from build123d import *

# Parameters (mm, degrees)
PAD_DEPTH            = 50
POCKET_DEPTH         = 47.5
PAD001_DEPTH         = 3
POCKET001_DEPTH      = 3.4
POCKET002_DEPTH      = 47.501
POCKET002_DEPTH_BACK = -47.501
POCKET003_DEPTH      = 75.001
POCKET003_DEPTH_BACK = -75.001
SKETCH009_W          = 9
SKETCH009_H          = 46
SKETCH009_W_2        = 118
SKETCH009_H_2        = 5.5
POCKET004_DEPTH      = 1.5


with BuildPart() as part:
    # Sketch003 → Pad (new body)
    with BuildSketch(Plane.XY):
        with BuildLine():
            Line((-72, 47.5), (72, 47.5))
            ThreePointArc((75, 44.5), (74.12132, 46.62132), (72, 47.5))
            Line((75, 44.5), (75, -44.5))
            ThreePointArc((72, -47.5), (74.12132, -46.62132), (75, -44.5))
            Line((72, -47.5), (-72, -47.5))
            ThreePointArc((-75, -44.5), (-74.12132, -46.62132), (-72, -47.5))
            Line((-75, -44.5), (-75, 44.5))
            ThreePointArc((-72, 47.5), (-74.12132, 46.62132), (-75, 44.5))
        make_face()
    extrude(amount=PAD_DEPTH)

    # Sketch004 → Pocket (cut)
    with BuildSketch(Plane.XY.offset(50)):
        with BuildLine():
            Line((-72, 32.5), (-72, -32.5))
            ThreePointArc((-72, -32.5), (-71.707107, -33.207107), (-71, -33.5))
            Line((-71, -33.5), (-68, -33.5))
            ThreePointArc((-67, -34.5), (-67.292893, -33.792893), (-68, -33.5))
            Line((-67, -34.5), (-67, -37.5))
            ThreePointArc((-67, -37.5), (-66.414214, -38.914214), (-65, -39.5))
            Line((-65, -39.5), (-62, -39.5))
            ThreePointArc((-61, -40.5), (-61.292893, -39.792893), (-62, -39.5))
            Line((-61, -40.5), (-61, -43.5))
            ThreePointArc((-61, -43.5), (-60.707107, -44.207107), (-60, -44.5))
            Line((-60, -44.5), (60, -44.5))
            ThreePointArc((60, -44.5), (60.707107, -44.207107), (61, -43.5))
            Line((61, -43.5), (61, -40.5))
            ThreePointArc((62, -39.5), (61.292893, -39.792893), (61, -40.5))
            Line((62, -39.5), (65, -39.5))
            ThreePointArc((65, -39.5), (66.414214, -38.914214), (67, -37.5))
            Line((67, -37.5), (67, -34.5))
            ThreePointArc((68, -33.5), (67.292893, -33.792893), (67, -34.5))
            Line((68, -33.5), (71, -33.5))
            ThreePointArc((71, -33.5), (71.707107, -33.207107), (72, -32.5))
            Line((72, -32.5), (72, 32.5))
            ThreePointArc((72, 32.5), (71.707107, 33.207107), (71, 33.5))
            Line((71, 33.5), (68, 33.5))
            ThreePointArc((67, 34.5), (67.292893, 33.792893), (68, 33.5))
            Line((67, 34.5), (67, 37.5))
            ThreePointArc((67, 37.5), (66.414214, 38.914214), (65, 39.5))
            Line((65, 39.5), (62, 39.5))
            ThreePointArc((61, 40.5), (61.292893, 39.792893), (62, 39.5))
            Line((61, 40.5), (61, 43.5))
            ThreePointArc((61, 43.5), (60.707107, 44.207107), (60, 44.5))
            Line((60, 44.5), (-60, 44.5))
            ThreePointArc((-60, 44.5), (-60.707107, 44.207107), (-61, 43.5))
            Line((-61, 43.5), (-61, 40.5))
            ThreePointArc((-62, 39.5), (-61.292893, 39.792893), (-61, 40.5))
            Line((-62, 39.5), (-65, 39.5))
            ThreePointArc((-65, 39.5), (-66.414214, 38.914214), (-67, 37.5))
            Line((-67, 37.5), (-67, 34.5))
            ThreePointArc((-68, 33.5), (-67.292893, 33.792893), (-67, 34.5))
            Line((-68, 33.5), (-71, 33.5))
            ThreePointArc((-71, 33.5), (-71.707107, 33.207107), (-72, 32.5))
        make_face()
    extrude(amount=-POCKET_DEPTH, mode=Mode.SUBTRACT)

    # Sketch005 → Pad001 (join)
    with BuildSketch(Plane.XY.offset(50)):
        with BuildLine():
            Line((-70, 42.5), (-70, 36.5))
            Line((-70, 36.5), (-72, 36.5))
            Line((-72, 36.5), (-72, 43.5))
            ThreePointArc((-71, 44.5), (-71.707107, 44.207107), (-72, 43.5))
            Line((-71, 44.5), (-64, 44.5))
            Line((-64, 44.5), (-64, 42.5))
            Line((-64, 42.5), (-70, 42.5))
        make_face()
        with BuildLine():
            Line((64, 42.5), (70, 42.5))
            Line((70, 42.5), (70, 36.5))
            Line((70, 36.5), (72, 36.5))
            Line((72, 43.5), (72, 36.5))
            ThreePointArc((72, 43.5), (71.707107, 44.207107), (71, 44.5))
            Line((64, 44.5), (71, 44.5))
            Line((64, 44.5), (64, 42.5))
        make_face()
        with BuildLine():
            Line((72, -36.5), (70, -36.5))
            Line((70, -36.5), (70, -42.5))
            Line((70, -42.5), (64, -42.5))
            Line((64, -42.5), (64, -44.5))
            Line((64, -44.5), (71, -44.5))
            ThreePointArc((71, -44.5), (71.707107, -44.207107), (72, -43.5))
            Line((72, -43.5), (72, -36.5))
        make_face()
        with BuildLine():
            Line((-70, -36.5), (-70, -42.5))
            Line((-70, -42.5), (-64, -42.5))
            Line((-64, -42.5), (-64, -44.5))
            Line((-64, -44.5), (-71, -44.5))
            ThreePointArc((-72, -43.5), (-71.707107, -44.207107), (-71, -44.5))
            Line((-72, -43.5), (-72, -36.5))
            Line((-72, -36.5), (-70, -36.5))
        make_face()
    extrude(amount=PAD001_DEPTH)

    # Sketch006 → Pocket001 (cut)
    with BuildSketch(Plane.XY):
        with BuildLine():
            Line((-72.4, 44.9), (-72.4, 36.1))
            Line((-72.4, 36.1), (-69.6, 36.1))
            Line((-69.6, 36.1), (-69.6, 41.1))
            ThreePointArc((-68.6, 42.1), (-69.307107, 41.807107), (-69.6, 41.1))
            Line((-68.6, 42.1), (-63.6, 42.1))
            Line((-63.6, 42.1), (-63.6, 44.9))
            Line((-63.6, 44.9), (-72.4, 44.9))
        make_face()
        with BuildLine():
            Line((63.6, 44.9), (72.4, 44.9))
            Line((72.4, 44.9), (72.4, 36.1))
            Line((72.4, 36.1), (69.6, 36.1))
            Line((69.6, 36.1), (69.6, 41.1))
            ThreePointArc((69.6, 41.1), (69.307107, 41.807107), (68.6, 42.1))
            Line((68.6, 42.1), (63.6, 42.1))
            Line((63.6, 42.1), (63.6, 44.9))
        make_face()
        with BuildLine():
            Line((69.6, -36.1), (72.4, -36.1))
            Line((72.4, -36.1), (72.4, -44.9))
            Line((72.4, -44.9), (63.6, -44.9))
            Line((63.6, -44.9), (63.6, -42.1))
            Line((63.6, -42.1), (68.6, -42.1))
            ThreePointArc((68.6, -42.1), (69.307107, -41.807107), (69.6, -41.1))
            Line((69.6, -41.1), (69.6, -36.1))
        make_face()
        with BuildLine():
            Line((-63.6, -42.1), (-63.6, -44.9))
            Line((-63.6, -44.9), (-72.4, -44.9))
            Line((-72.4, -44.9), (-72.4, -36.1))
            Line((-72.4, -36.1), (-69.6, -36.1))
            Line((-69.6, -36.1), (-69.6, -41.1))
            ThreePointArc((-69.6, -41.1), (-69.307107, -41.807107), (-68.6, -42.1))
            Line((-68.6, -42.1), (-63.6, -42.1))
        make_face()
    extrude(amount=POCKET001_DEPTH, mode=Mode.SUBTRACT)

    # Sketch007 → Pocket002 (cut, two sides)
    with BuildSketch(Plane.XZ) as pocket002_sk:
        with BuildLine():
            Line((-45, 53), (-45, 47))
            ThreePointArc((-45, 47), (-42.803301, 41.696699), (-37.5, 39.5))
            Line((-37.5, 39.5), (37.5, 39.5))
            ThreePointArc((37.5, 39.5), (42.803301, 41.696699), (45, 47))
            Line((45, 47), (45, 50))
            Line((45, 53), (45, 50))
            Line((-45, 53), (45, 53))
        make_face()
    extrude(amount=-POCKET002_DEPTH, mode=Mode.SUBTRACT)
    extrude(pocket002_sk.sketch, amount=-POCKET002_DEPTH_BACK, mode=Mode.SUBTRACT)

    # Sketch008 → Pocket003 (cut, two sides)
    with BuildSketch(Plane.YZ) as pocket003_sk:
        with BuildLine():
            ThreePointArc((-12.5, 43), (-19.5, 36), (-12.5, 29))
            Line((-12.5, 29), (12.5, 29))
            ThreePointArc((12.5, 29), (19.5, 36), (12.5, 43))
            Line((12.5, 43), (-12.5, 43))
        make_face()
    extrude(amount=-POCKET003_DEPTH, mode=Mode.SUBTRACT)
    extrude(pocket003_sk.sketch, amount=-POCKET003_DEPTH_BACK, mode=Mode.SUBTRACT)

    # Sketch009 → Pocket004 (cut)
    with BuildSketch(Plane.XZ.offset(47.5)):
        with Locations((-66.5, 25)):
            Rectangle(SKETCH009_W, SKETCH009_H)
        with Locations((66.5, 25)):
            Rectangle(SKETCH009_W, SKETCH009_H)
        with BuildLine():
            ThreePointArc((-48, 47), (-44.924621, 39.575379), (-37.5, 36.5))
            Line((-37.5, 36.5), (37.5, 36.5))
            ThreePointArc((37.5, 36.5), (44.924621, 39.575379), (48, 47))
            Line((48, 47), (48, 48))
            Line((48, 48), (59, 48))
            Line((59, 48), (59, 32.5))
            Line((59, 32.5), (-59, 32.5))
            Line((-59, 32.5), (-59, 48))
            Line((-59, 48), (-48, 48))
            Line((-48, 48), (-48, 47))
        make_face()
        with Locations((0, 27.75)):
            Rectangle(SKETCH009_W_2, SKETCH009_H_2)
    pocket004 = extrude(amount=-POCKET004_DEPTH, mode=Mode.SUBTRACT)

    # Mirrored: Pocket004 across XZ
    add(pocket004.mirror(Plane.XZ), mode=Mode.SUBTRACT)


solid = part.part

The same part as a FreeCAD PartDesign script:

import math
import FreeCAD as App
import Part
import Sketcher
Q = App.Units.Quantity


def add_polygon(sketch, points):
    """Adds a closed chain of lines whose ends are joined by coincident constraints."""
    first, n = sketch.GeometryCount, len(points)
    for a, b in zip(points, points[1:] + points[:1]):
        sketch.addGeometry(Part.LineSegment(App.Vector(*a, 0), App.Vector(*b, 0)), False)
    for i in range(n):
        sketch.addConstraint(Sketcher.Constraint("Coincident", first + i, 2, first + (i + 1) % n, 1))

doc = App.newDocument("Part")
body = doc.addObject("PartDesign::Body", "Body")

# Sketch on XY plane
sketch1 = doc.addObject("Sketcher::SketchObject", "Sketch")
body.addObject(sketch1)
sketch1.AttachmentSupport = (doc.XY_Plane, [""])
sketch1.MapMode = "FlatFace"
sketch1.addGeometry(Part.LineSegment(App.Vector(72, 47.5, 0), App.Vector(-72, 47.5, 0)), False)
sketch1.addGeometry(Part.ArcOfCircle(Part.Circle(App.Vector(-72, 44.5, 0), App.Vector(0, 0, 1), 3), math.radians(90), math.radians(180)), False)
sketch1.addGeometry(Part.LineSegment(App.Vector(-75, 44.5, 0), App.Vector(-75, -44.5, 0)), False)
sketch1.addGeometry(Part.ArcOfCircle(Part.Circle(App.Vector(-72, -44.5, 0), App.Vector(0, 0, 1), 3), math.radians(-180), math.radians(-90)), False)
sketch1.addGeometry(Part.LineSegment(App.Vector(-72, -47.5, 0), App.Vector(72, -47.5, 0)), False)
sketch1.addGeometry(Part.ArcOfCircle(Part.Circle(App.Vector(72, -44.5, 0), App.Vector(0, 0, 1), 3), math.radians(-90), math.radians(0)), False)
sketch1.addGeometry(Part.LineSegment(App.Vector(75, -44.5, 0), App.Vector(75, 44.5, 0)), False)
sketch1.addGeometry(Part.ArcOfCircle(Part.Circle(App.Vector(72, 44.5, 0), App.Vector(0, 0, 1), 3), math.radians(0), math.radians(90)), False)
sketch1.addConstraint(Sketcher.Constraint("Tangent", 0, 2, 1, 1))
sketch1.addConstraint(Sketcher.Constraint("Tangent", 1, 2, 2, 1))
sketch1.addConstraint(Sketcher.Constraint("Tangent", 2, 2, 3, 1))
sketch1.addConstraint(Sketcher.Constraint("Tangent", 3, 2, 4, 1))
sketch1.addConstraint(Sketcher.Constraint("Tangent", 4, 2, 5, 1))
sketch1.addConstraint(Sketcher.Constraint("Tangent", 5, 2, 6, 1))
sketch1.addConstraint(Sketcher.Constraint("Tangent", 6, 2, 7, 1))
sketch1.addConstraint(Sketcher.Constraint("Tangent", 7, 2, 0, 1))
sketch1.addConstraint(Sketcher.Constraint("Horizontal", 0))
sketch1.addConstraint(Sketcher.Constraint("Vertical", 2))
sketch1.addConstraint(Sketcher.Constraint("Horizontal", 4))
sketch1.addConstraint(Sketcher.Constraint("Vertical", 6))
sketch1.addConstraint(Sketcher.Constraint("Equal", 1, 3))
sketch1.addConstraint(Sketcher.Constraint("Equal", 3, 5))
sketch1.addConstraint(Sketcher.Constraint("Equal", 5, 7))
sketch1.addConstraint(Sketcher.Constraint("Symmetric", 1, 3, 5, 3, -1, 1))
sketch1.addConstraint(Sketcher.Constraint("Radius", 1, Q("3.000001 mm")))
sketch1.addConstraint(Sketcher.Constraint("DistanceX", 0, 2, 0, 1, Q("144 mm")))
sketch1.addConstraint(Sketcher.Constraint("DistanceY", 2, 2, 2, 1, Q("89 mm")))
pad1 = doc.addObject("PartDesign::Pad", "Pad")
body.addObject(pad1)
pad1.Profile = sketch1
pad1.Length = 50

# Sketch on XY plane
sketch2 = doc.addObject("Sketcher::SketchObject", "Sketch001")
body.addObject(sketch2)
sketch2.AttachmentSupport = (doc.XY_Plane, [""])
sketch2.MapMode = "FlatFace"
sketch2.AttachmentOffset = App.Placement(App.Vector(0, 0, 50), App.Rotation())
sketch2.addGeometry(Part.LineSegment(App.Vector(-72, 32.5, 0), App.Vector(-72, -32.5, 0)), False)
sketch2.addGeometry(Part.ArcOfCircle(Part.Circle(App.Vector(-71, -32.5, 0), App.Vector(0, 0, 1), 1), math.radians(180), math.radians(270)), False)
sketch2.addGeometry(Part.LineSegment(App.Vector(-71, -33.5, 0), App.Vector(-68, -33.5, 0)), False)
sketch2.addGeometry(Part.ArcOfCircle(Part.Circle(App.Vector(-68, -34.5, 0), App.Vector(0, 0, 1), 1), math.radians(0), math.radians(90)), False)
sketch2.addGeometry(Part.LineSegment(App.Vector(-67, -34.5, 0), App.Vector(-67, -37.5, 0)), False)
sketch2.addGeometry(Part.ArcOfCircle(Part.Circle(App.Vector(-65, -37.5, 0), App.Vector(0, 0, 1), 2), math.radians(180), math.radians(270)), False)
sketch2.addGeometry(Part.LineSegment(App.Vector(-65, -39.5, 0), App.Vector(-62, -39.5, 0)), False)
sketch2.addGeometry(Part.ArcOfCircle(Part.Circle(App.Vector(-62, -40.5, 0), App.Vector(0, 0, 1), 1), math.radians(0), math.radians(90)), False)
sketch2.addGeometry(Part.LineSegment(App.Vector(-61, -40.5, 0), App.Vector(-61, -43.5, 0)), False)
sketch2.addGeometry(Part.ArcOfCircle(Part.Circle(App.Vector(-60, -43.5, 0), App.Vector(0, 0, 1), 1), math.radians(180), math.radians(270)), False)
sketch2.addGeometry(Part.LineSegment(App.Vector(-60, -44.5, 0), App.Vector(60, -44.5, 0)), False)
sketch2.addGeometry(Part.ArcOfCircle(Part.Circle(App.Vector(60, -43.5, 0), App.Vector(0, 0, 1), 1), math.radians(-90), math.radians(0)), False)
sketch2.addGeometry(Part.LineSegment(App.Vector(61, -43.5, 0), App.Vector(61, -40.5, 0)), False)
sketch2.addGeometry(Part.ArcOfCircle(Part.Circle(App.Vector(62, -40.5, 0), App.Vector(0, 0, 1), 1), math.radians(90), math.radians(180)), False)
sketch2.addGeometry(Part.LineSegment(App.Vector(62, -39.5, 0), App.Vector(65, -39.5, 0)), False)
sketch2.addGeometry(Part.ArcOfCircle(Part.Circle(App.Vector(65, -37.5, 0), App.Vector(0, 0, 1), 2), math.radians(-90), math.radians(0)), False)
sketch2.addGeometry(Part.LineSegment(App.Vector(67, -37.5, 0), App.Vector(67, -34.5, 0)), False)
sketch2.addGeometry(Part.ArcOfCircle(Part.Circle(App.Vector(68, -34.5, 0), App.Vector(0, 0, 1), 1), math.radians(90), math.radians(180)), False)
sketch2.addGeometry(Part.LineSegment(App.Vector(68, -33.5, 0), App.Vector(71, -33.5, 0)), False)
sketch2.addGeometry(Part.ArcOfCircle(Part.Circle(App.Vector(71, -32.5, 0), App.Vector(0, 0, 1), 1), math.radians(-90), math.radians(0)), False)
sketch2.addGeometry(Part.LineSegment(App.Vector(72, -32.5, 0), App.Vector(72, 32.5, 0)), False)
sketch2.addGeometry(Part.ArcOfCircle(Part.Circle(App.Vector(71, 32.5, 0), App.Vector(0, 0, 1), 1), math.radians(0), math.radians(90)), False)
sketch2.addGeometry(Part.LineSegment(App.Vector(71, 33.5, 0), App.Vector(68, 33.5, 0)), False)
sketch2.addGeometry(Part.ArcOfCircle(Part.Circle(App.Vector(68, 34.5, 0), App.Vector(0, 0, 1), 1), math.radians(180), math.radians(270)), False)
sketch2.addGeometry(Part.LineSegment(App.Vector(67, 34.5, 0), App.Vector(67, 37.5, 0)), False)
sketch2.addGeometry(Part.ArcOfCircle(Part.Circle(App.Vector(65, 37.5, 0), App.Vector(0, 0, 1), 2), math.radians(0), math.radians(90)), False)
sketch2.addGeometry(Part.LineSegment(App.Vector(65, 39.5, 0), App.Vector(62, 39.5, 0)), False)
sketch2.addGeometry(Part.ArcOfCircle(Part.Circle(App.Vector(62, 40.5, 0), App.Vector(0, 0, 1), 1), math.radians(180), math.radians(270)), False)
sketch2.addGeometry(Part.LineSegment(App.Vector(61, 40.5, 0), App.Vector(61, 43.5, 0)), False)
sketch2.addGeometry(Part.ArcOfCircle(Part.Circle(App.Vector(60, 43.5, 0), App.Vector(0, 0, 1), 1), math.radians(0), math.radians(90)), False)
sketch2.addGeometry(Part.LineSegment(App.Vector(60, 44.5, 0), App.Vector(-60, 44.5, 0)), False)
sketch2.addGeometry(Part.ArcOfCircle(Part.Circle(App.Vector(-60, 43.5, 0), App.Vector(0, 0, 1), 1), math.radians(90), math.radians(180)), False)
sketch2.addGeometry(Part.LineSegment(App.Vector(-61, 43.5, 0), App.Vector(-61, 40.5, 0)), False)
sketch2.addGeometry(Part.ArcOfCircle(Part.Circle(App.Vector(-62, 40.5, 0), App.Vector(0, 0, 1), 1), math.radians(-90), math.radians(0)), False)
sketch2.addGeometry(Part.LineSegment(App.Vector(-62, 39.5, 0), App.Vector(-65, 39.5, 0)), False)
sketch2.addGeometry(Part.ArcOfCircle(Part.Circle(App.Vector(-65, 37.5, 0), App.Vector(0, 0, 1), 2), math.radians(90), math.radians(180)), False)
sketch2.addGeometry(Part.LineSegment(App.Vector(-67, 37.5, 0), App.Vector(-67, 34.5, 0)), False)
sketch2.addGeometry(Part.ArcOfCircle(Part.Circle(App.Vector(-68, 34.5, 0), App.Vector(0, 0, 1), 1), math.radians(-90), math.radians(0)), False)
sketch2.addGeometry(Part.LineSegment(App.Vector(-68, 33.5, 0), App.Vector(-71, 33.5, 0)), False)
sketch2.addGeometry(Part.ArcOfCircle(Part.Circle(App.Vector(-71, 32.5, 0), App.Vector(0, 0, 1), 1), math.radians(90), math.radians(180)), False)
sketch2.addConstraint(Sketcher.Constraint("Tangent", 0, 2, 1, 1))
sketch2.addConstraint(Sketcher.Constraint("Tangent", 1, 2, 2, 1))
sketch2.addConstraint(Sketcher.Constraint("Tangent", 2, 2, 3, 2))
sketch2.addConstraint(Sketcher.Constraint("Tangent", 3, 1, 4, 1))
sketch2.addConstraint(Sketcher.Constraint("Tangent", 4, 2, 5, 1))
sketch2.addConstraint(Sketcher.Constraint("Tangent", 5, 2, 6, 1))
sketch2.addConstraint(Sketcher.Constraint("Tangent", 6, 2, 7, 2))
sketch2.addConstraint(Sketcher.Constraint("Tangent", 7, 1, 8, 1))
sketch2.addConstraint(Sketcher.Constraint("Tangent", 8, 2, 9, 1))
sketch2.addConstraint(Sketcher.Constraint("Tangent", 9, 2, 10, 1))
sketch2.addConstraint(Sketcher.Constraint("Tangent", 10, 2, 11, 1))
sketch2.addConstraint(Sketcher.Constraint("Tangent", 11, 2, 12, 1))
sketch2.addConstraint(Sketcher.Constraint("Tangent", 12, 2, 13, 2))
sketch2.addConstraint(Sketcher.Constraint("Tangent", 13, 1, 14, 1))
sketch2.addConstraint(Sketcher.Constraint("Tangent", 14, 2, 15, 1))
sketch2.addConstraint(Sketcher.Constraint("Tangent", 15, 2, 16, 1))
sketch2.addConstraint(Sketcher.Constraint("Tangent", 16, 2, 17, 2))
sketch2.addConstraint(Sketcher.Constraint("Tangent", 17, 1, 18, 1))
sketch2.addConstraint(Sketcher.Constraint("Tangent", 18, 2, 19, 1))
sketch2.addConstraint(Sketcher.Constraint("Tangent", 19, 2, 20, 1))
sketch2.addConstraint(Sketcher.Constraint("Tangent", 20, 2, 21, 1))
sketch2.addConstraint(Sketcher.Constraint("Tangent", 21, 2, 22, 1))
sketch2.addConstraint(Sketcher.Constraint("Tangent", 22, 2, 23, 2))
sketch2.addConstraint(Sketcher.Constraint("Tangent", 23, 1, 24, 1))
sketch2.addConstraint(Sketcher.Constraint("Tangent", 24, 2, 25, 1))
sketch2.addConstraint(Sketcher.Constraint("Tangent", 25, 2, 26, 1))
sketch2.addConstraint(Sketcher.Constraint("Tangent", 26, 2, 27, 2))
sketch2.addConstraint(Sketcher.Constraint("Tangent", 27, 1, 28, 1))
sketch2.addConstraint(Sketcher.Constraint("Tangent", 28, 2, 29, 1))
sketch2.addConstraint(Sketcher.Constraint("Tangent", 29, 2, 30, 1))
sketch2.addConstraint(Sketcher.Constraint("Tangent", 30, 2, 31, 1))
sketch2.addConstraint(Sketcher.Constraint("Tangent", 31, 2, 32, 1))
sketch2.addConstraint(Sketcher.Constraint("Tangent", 32, 2, 33, 2))
sketch2.addConstraint(Sketcher.Constraint("Tangent", 33, 1, 34, 1))
sketch2.addConstraint(Sketcher.Constraint("Tangent", 34, 2, 35, 1))
sketch2.addConstraint(Sketcher.Constraint("Tangent", 35, 2, 36, 1))
sketch2.addConstraint(Sketcher.Constraint("Tangent", 36, 2, 37, 2))
sketch2.addConstraint(Sketcher.Constraint("Tangent", 37, 1, 38, 1))
sketch2.addConstraint(Sketcher.Constraint("Tangent", 38, 2, 39, 1))
sketch2.addConstraint(Sketcher.Constraint("Tangent", 39, 2, 0, 1))
sketch2.addConstraint(Sketcher.Constraint("Vertical", 0))
sketch2.addConstraint(Sketcher.Constraint("Horizontal", 2))
sketch2.addConstraint(Sketcher.Constraint("Vertical", 4))
sketch2.addConstraint(Sketcher.Constraint("Horizontal", 6))
sketch2.addConstraint(Sketcher.Constraint("Vertical", 8))
sketch2.addConstraint(Sketcher.Constraint("Horizontal", 10))
sketch2.addConstraint(Sketcher.Constraint("Vertical", 12))
sketch2.addConstraint(Sketcher.Constraint("Horizontal", 14))
sketch2.addConstraint(Sketcher.Constraint("Vertical", 16))
sketch2.addConstraint(Sketcher.Constraint("Horizontal", 18))
sketch2.addConstraint(Sketcher.Constraint("Vertical", 20))
sketch2.addConstraint(Sketcher.Constraint("Horizontal", 22))
sketch2.addConstraint(Sketcher.Constraint("Vertical", 24))
sketch2.addConstraint(Sketcher.Constraint("Horizontal", 26))
sketch2.addConstraint(Sketcher.Constraint("Vertical", 28))
sketch2.addConstraint(Sketcher.Constraint("Horizontal", 30))
sketch2.addConstraint(Sketcher.Constraint("Vertical", 32))
sketch2.addConstraint(Sketcher.Constraint("Horizontal", 34))
sketch2.addConstraint(Sketcher.Constraint("Vertical", 36))
sketch2.addConstraint(Sketcher.Constraint("Horizontal", 38))
sketch2.addConstraint(Sketcher.Constraint("Equal", 1, 3))
sketch2.addConstraint(Sketcher.Constraint("Equal", 3, 7))
sketch2.addConstraint(Sketcher.Constraint("Equal", 7, 9))
sketch2.addConstraint(Sketcher.Constraint("Equal", 9, 11))
sketch2.addConstraint(Sketcher.Constraint("Equal", 11, 13))
sketch2.addConstraint(Sketcher.Constraint("Equal", 5, 15))
sketch2.addConstraint(Sketcher.Constraint("Equal", 13, 17))
sketch2.addConstraint(Sketcher.Constraint("Equal", 17, 19))
sketch2.addConstraint(Sketcher.Constraint("Equal", 19, 21))
sketch2.addConstraint(Sketcher.Constraint("Equal", 21, 23))
sketch2.addConstraint(Sketcher.Constraint("Equal", 15, 25))
sketch2.addConstraint(Sketcher.Constraint("Equal", 23, 27))
sketch2.addConstraint(Sketcher.Constraint("Equal", 27, 29))
sketch2.addConstraint(Sketcher.Constraint("Equal", 29, 31))
sketch2.addConstraint(Sketcher.Constraint("Equal", 31, 33))
sketch2.addConstraint(Sketcher.Constraint("Equal", 25, 35))
sketch2.addConstraint(Sketcher.Constraint("Equal", 33, 37))
sketch2.addConstraint(Sketcher.Constraint("Equal", 37, 39))
sketch2.addConstraint(Sketcher.Constraint("Symmetric", 1, 3, 21, 3, -1, 1))
sketch2.addConstraint(Sketcher.Constraint("Symmetric", 5, 3, 25, 3, -1, 1))
sketch2.addConstraint(Sketcher.Constraint("Symmetric", 9, 3, 29, 3, -1, 1))
sketch2.addConstraint(Sketcher.Constraint("Symmetric", 13, 3, 33, 3, -1, 1))
sketch2.addConstraint(Sketcher.Constraint("Symmetric", 17, 3, 37, 3, -1, 1))
sketch2.addConstraint(Sketcher.Constraint("Symmetric", 7, 3, 13, 3, -2))
sketch2.addConstraint(Sketcher.Constraint("Symmetric", 3, 3, 17, 3, -2))
sketch2.addConstraint(Sketcher.Constraint("Equal", 2, 6))
sketch2.addConstraint(Sketcher.Constraint("Equal", 38, 4))
sketch2.addConstraint(Sketcher.Constraint("Equal", 4, 8))
sketch2.addConstraint(Sketcher.Constraint("Radius", 1, Q("0.999999 mm")))
sketch2.addConstraint(Sketcher.Constraint("Radius", 5, Q("1.999999 mm")))
sketch2.addConstraint(Sketcher.Constraint("DistanceX", 2, 1, 2, 2, Q("3 mm")))
sketch2.addConstraint(Sketcher.Constraint("DistanceX", 10, 1, 10, 2, Q("120 mm")))
sketch2.addConstraint(Sketcher.Constraint("DistanceY", 0, 2, 0, 1, Q("65 mm")))
pocket1 = doc.addObject("PartDesign::Pocket", "Pocket")
body.addObject(pocket1)
pocket1.Profile = sketch2
pocket1.Length = 47.5

# Sketch on XY plane
sketch3 = doc.addObject("Sketcher::SketchObject", "Sketch002")
body.addObject(sketch3)
sketch3.AttachmentSupport = (doc.XY_Plane, [""])
sketch3.MapMode = "FlatFace"
sketch3.AttachmentOffset = App.Placement(App.Vector(0, 0, 50), App.Rotation())
sketch3.addGeometry(Part.LineSegment(App.Vector(-70, 36.5, 0), App.Vector(-70, 42.5, 0)), False)
sketch3.addGeometry(Part.LineSegment(App.Vector(-70, 42.5, 0), App.Vector(-64, 42.5, 0)), False)
sketch3.addGeometry(Part.LineSegment(App.Vector(-64, 42.5, 0), App.Vector(-64, 44.5, 0)), False)
sketch3.addGeometry(Part.LineSegment(App.Vector(-64, 44.5, 0), App.Vector(-71, 44.5, 0)), False)
sketch3.addGeometry(Part.ArcOfCircle(Part.Circle(App.Vector(-71, 43.5, 0), App.Vector(0, 0, 1), 1), math.radians(90), math.radians(180)), False)
sketch3.addGeometry(Part.LineSegment(App.Vector(-72, 43.5, 0), App.Vector(-72, 36.5, 0)), False)
sketch3.addGeometry(Part.LineSegment(App.Vector(-72, 36.5, 0), App.Vector(-70, 36.5, 0)), False)
sketch3.addGeometry(Part.LineSegment(App.Vector(64, 42.5, 0), App.Vector(70, 42.5, 0)), False)
sketch3.addGeometry(Part.LineSegment(App.Vector(70, 42.5, 0), App.Vector(70, 36.5, 0)), False)
sketch3.addGeometry(Part.LineSegment(App.Vector(70, 36.5, 0), App.Vector(72, 36.5, 0)), False)
sketch3.addGeometry(Part.LineSegment(App.Vector(72, 36.5, 0), App.Vector(72, 43.5, 0)), False)
sketch3.addGeometry(Part.ArcOfCircle(Part.Circle(App.Vector(71, 43.5, 0), App.Vector(0, 0, 1), 1), math.radians(0), math.radians(90)), False)
sketch3.addGeometry(Part.LineSegment(App.Vector(71, 44.5, 0), App.Vector(64, 44.5, 0)), False)
sketch3.addGeometry(Part.LineSegment(App.Vector(64, 44.5, 0), App.Vector(64, 42.5, 0)), False)
sketch3.addGeometry(Part.LineSegment(App.Vector(72, -36.5, 0), App.Vector(70, -36.5, 0)), False)
sketch3.addGeometry(Part.LineSegment(App.Vector(70, -36.5, 0), App.Vector(70, -42.5, 0)), False)
sketch3.addGeometry(Part.LineSegment(App.Vector(70, -42.5, 0), App.Vector(64, -42.5, 0)), False)
sketch3.addGeometry(Part.LineSegment(App.Vector(64, -42.5, 0), App.Vector(64, -44.5, 0)), False)
sketch3.addGeometry(Part.LineSegment(App.Vector(64, -44.5, 0), App.Vector(71, -44.5, 0)), False)
sketch3.addGeometry(Part.ArcOfCircle(Part.Circle(App.Vector(71, -43.5, 0), App.Vector(0, 0, 1), 1), math.radians(-90), math.radians(0)), False)
sketch3.addGeometry(Part.LineSegment(App.Vector(72, -43.5, 0), App.Vector(72, -36.5, 0)), False)
sketch3.addGeometry(Part.LineSegment(App.Vector(-70, -42.5, 0), App.Vector(-70, -36.5, 0)), False)
sketch3.addGeometry(Part.LineSegment(App.Vector(-70, -36.5, 0), App.Vector(-72, -36.5, 0)), False)
sketch3.addGeometry(Part.LineSegment(App.Vector(-72, -36.5, 0), App.Vector(-72, -43.5, 0)), False)
sketch3.addGeometry(Part.ArcOfCircle(Part.Circle(App.Vector(-71, -43.5, 0), App.Vector(0, 0, 1), 1), math.radians(180), math.radians(270)), False)
sketch3.addGeometry(Part.LineSegment(App.Vector(-71, -44.5, 0), App.Vector(-64, -44.5, 0)), False)
sketch3.addGeometry(Part.LineSegment(App.Vector(-64, -44.5, 0), App.Vector(-64, -42.5, 0)), False)
sketch3.addGeometry(Part.LineSegment(App.Vector(-64, -42.5, 0), App.Vector(-70, -42.5, 0)), False)
sketch3.addConstraint(Sketcher.Constraint("Coincident", 0, 2, 1, 1))
sketch3.addConstraint(Sketcher.Constraint("Coincident", 1, 2, 2, 1))
sketch3.addConstraint(Sketcher.Constraint("Coincident", 2, 2, 3, 1))
sketch3.addConstraint(Sketcher.Constraint("Tangent", 3, 2, 4, 1))
sketch3.addConstraint(Sketcher.Constraint("Tangent", 4, 2, 5, 1))
sketch3.addConstraint(Sketcher.Constraint("Coincident", 5, 2, 6, 1))
sketch3.addConstraint(Sketcher.Constraint("Coincident", 6, 2, 0, 1))
sketch3.addConstraint(Sketcher.Constraint("Coincident", 7, 2, 8, 1))
sketch3.addConstraint(Sketcher.Constraint("Coincident", 8, 2, 9, 1))
sketch3.addConstraint(Sketcher.Constraint("Coincident", 9, 2, 10, 1))
sketch3.addConstraint(Sketcher.Constraint("Tangent", 10, 2, 11, 1))
sketch3.addConstraint(Sketcher.Constraint("Tangent", 11, 2, 12, 1))
sketch3.addConstraint(Sketcher.Constraint("Coincident", 12, 2, 13, 1))
sketch3.addConstraint(Sketcher.Constraint("Coincident", 13, 2, 7, 1))
sketch3.addConstraint(Sketcher.Constraint("Coincident", 14, 2, 15, 1))
sketch3.addConstraint(Sketcher.Constraint("Coincident", 15, 2, 16, 1))
sketch3.addConstraint(Sketcher.Constraint("Coincident", 16, 2, 17, 1))
sketch3.addConstraint(Sketcher.Constraint("Coincident", 17, 2, 18, 1))
sketch3.addConstraint(Sketcher.Constraint("Tangent", 18, 2, 19, 1))
sketch3.addConstraint(Sketcher.Constraint("Tangent", 19, 2, 20, 1))
sketch3.addConstraint(Sketcher.Constraint("Coincident", 20, 2, 14, 1))
sketch3.addConstraint(Sketcher.Constraint("Coincident", 21, 2, 22, 1))
sketch3.addConstraint(Sketcher.Constraint("Coincident", 22, 2, 23, 1))
sketch3.addConstraint(Sketcher.Constraint("Tangent", 23, 2, 24, 1))
sketch3.addConstraint(Sketcher.Constraint("Tangent", 24, 2, 25, 1))
sketch3.addConstraint(Sketcher.Constraint("Coincident", 25, 2, 26, 1))
sketch3.addConstraint(Sketcher.Constraint("Coincident", 26, 2, 27, 1))
sketch3.addConstraint(Sketcher.Constraint("Coincident", 27, 2, 21, 1))
sketch3.addConstraint(Sketcher.Constraint("Vertical", 0))
sketch3.addConstraint(Sketcher.Constraint("Horizontal", 1))
sketch3.addConstraint(Sketcher.Constraint("Vertical", 2))
sketch3.addConstraint(Sketcher.Constraint("Horizontal", 3))
sketch3.addConstraint(Sketcher.Constraint("Vertical", 5))
sketch3.addConstraint(Sketcher.Constraint("Horizontal", 6))
sketch3.addConstraint(Sketcher.Constraint("Horizontal", 7))
sketch3.addConstraint(Sketcher.Constraint("Vertical", 8))
sketch3.addConstraint(Sketcher.Constraint("Horizontal", 9))
sketch3.addConstraint(Sketcher.Constraint("Vertical", 10))
sketch3.addConstraint(Sketcher.Constraint("Horizontal", 12))
sketch3.addConstraint(Sketcher.Constraint("Vertical", 13))
sketch3.addConstraint(Sketcher.Constraint("Horizontal", 14))
sketch3.addConstraint(Sketcher.Constraint("Vertical", 15))
sketch3.addConstraint(Sketcher.Constraint("Horizontal", 16))
sketch3.addConstraint(Sketcher.Constraint("Vertical", 17))
sketch3.addConstraint(Sketcher.Constraint("Horizontal", 18))
sketch3.addConstraint(Sketcher.Constraint("Vertical", 20))
sketch3.addConstraint(Sketcher.Constraint("Vertical", 21))
sketch3.addConstraint(Sketcher.Constraint("Horizontal", 22))
sketch3.addConstraint(Sketcher.Constraint("Vertical", 23))
sketch3.addConstraint(Sketcher.Constraint("Horizontal", 25))
sketch3.addConstraint(Sketcher.Constraint("Vertical", 26))
sketch3.addConstraint(Sketcher.Constraint("Horizontal", 27))
sketch3.addConstraint(Sketcher.Constraint("Equal", 4, 11))
sketch3.addConstraint(Sketcher.Constraint("Equal", 11, 19))
sketch3.addConstraint(Sketcher.Constraint("Equal", 19, 24))
sketch3.addConstraint(Sketcher.Constraint("Symmetric", 4, 3, 19, 3, -1, 1))
sketch3.addConstraint(Sketcher.Constraint("Symmetric", 11, 3, 24, 3, -1, 1))
sketch3.addConstraint(Sketcher.Constraint("Symmetric", 6, 2, 14, 2, -1, 1))
sketch3.addConstraint(Sketcher.Constraint("Symmetric", 1, 2, 16, 2, -1, 1))
sketch3.addConstraint(Sketcher.Constraint("Symmetric", 8, 2, 21, 2, -1, 1))
sketch3.addConstraint(Sketcher.Constraint("Symmetric", 13, 2, 26, 2, -1, 1))
sketch3.addConstraint(Sketcher.Constraint("Symmetric", 4, 3, 11, 3, -2))
sketch3.addConstraint(Sketcher.Constraint("Symmetric", 0, 2, 7, 2, -2))
sketch3.addConstraint(Sketcher.Constraint("Horizontal", 6, 2, 8, 2))
sketch3.addConstraint(Sketcher.Constraint("Vertical", 13, 2, 16, 2))
sketch3.addConstraint(Sketcher.Constraint("Equal", 27, 0))
sketch3.addConstraint(Sketcher.Constraint("Equal", 22, 2))
sketch3.addConstraint(Sketcher.Constraint("Radius", 4, Q("0.999999 mm")))
sketch3.addConstraint(Sketcher.Constraint("DistanceX", 1, 1, 1, 2, Q("6 mm")))
sketch3.addConstraint(Sketcher.Constraint("DistanceX", 3, 2, 3, 1, Q("7 mm")))
sketch3.addConstraint(Sketcher.Constraint("DistanceX", 4, 3, -1, 1, Q("71.000001 mm")))
sketch3.addConstraint(Sketcher.Constraint("DistanceY", 19, 3, 11, 3, Q("87.000001 mm")))
pad2 = doc.addObject("PartDesign::Pad", "Pad001")
body.addObject(pad2)
pad2.Profile = sketch3
pad2.Length = 3

# Sketch on XY plane
sketch4 = doc.addObject("Sketcher::SketchObject", "Sketch003")
body.addObject(sketch4)
sketch4.AttachmentSupport = (doc.XY_Plane, [""])
sketch4.MapMode = "FlatFace"
sketch4.addGeometry(Part.LineSegment(App.Vector(-72.4, 44.9, 0), App.Vector(-72.4, 36.1, 0)), False)
sketch4.addGeometry(Part.LineSegment(App.Vector(-72.4, 36.1, 0), App.Vector(-69.6, 36.1, 0)), False)
sketch4.addGeometry(Part.LineSegment(App.Vector(-69.6, 36.1, 0), App.Vector(-69.6, 41.1, 0)), False)
sketch4.addGeometry(Part.ArcOfCircle(Part.Circle(App.Vector(-68.6, 41.1, 0), App.Vector(0, 0, 1), 1), math.radians(90), math.radians(180)), False)
sketch4.addGeometry(Part.LineSegment(App.Vector(-68.6, 42.1, 0), App.Vector(-63.6, 42.1, 0)), False)
sketch4.addGeometry(Part.LineSegment(App.Vector(-63.6, 42.1, 0), App.Vector(-63.6, 44.9, 0)), False)
sketch4.addGeometry(Part.LineSegment(App.Vector(-63.6, 44.9, 0), App.Vector(-72.4, 44.9, 0)), False)
sketch4.addGeometry(Part.LineSegment(App.Vector(72.4, 44.9, 0), App.Vector(63.6, 44.9, 0)), False)
sketch4.addGeometry(Part.LineSegment(App.Vector(63.6, 44.9, 0), App.Vector(63.6, 42.1, 0)), False)
sketch4.addGeometry(Part.LineSegment(App.Vector(63.6, 42.1, 0), App.Vector(68.6, 42.1, 0)), False)
sketch4.addGeometry(Part.ArcOfCircle(Part.Circle(App.Vector(68.6, 41.1, 0), App.Vector(0, 0, 1), 1), math.radians(0), math.radians(90)), False)
sketch4.addGeometry(Part.LineSegment(App.Vector(69.6, 41.1, 0), App.Vector(69.6, 36.1, 0)), False)
sketch4.addGeometry(Part.LineSegment(App.Vector(69.6, 36.1, 0), App.Vector(72.4, 36.1, 0)), False)
sketch4.addGeometry(Part.LineSegment(App.Vector(72.4, 36.1, 0), App.Vector(72.4, 44.9, 0)), False)
sketch4.addGeometry(Part.LineSegment(App.Vector(72.4, -36.1, 0), App.Vector(69.6, -36.1, 0)), False)
sketch4.addGeometry(Part.LineSegment(App.Vector(69.6, -36.1, 0), App.Vector(69.6, -41.1, 0)), False)
sketch4.addGeometry(Part.ArcOfCircle(Part.Circle(App.Vector(68.6, -41.1, 0), App.Vector(0, 0, 1), 1), math.radians(-90), math.radians(0)), False)
sketch4.addGeometry(Part.LineSegment(App.Vector(68.6, -42.1, 0), App.Vector(63.6, -42.1, 0)), False)
sketch4.addGeometry(Part.LineSegment(App.Vector(63.6, -42.1, 0), App.Vector(63.6, -44.9, 0)), False)
sketch4.addGeometry(Part.LineSegment(App.Vector(63.6, -44.9, 0), App.Vector(72.4, -44.9, 0)), False)
sketch4.addGeometry(Part.LineSegment(App.Vector(72.4, -44.9, 0), App.Vector(72.4, -36.1, 0)), False)
sketch4.addGeometry(Part.LineSegment(App.Vector(-63.6, -44.9, 0), App.Vector(-63.6, -42.1, 0)), False)
sketch4.addGeometry(Part.LineSegment(App.Vector(-63.6, -42.1, 0), App.Vector(-68.6, -42.1, 0)), False)
sketch4.addGeometry(Part.ArcOfCircle(Part.Circle(App.Vector(-68.6, -41.1, 0), App.Vector(0, 0, 1), 1), math.radians(180), math.radians(270)), False)
sketch4.addGeometry(Part.LineSegment(App.Vector(-69.6, -41.1, 0), App.Vector(-69.6, -36.1, 0)), False)
sketch4.addGeometry(Part.LineSegment(App.Vector(-69.6, -36.1, 0), App.Vector(-72.4, -36.1, 0)), False)
sketch4.addGeometry(Part.LineSegment(App.Vector(-72.4, -36.1, 0), App.Vector(-72.4, -44.9, 0)), False)
sketch4.addGeometry(Part.LineSegment(App.Vector(-72.4, -44.9, 0), App.Vector(-63.6, -44.9, 0)), False)
sketch4.addConstraint(Sketcher.Constraint("Coincident", 0, 2, 1, 1))
sketch4.addConstraint(Sketcher.Constraint("Coincident", 1, 2, 2, 1))
sketch4.addConstraint(Sketcher.Constraint("Tangent", 2, 2, 3, 2))
sketch4.addConstraint(Sketcher.Constraint("Tangent", 3, 1, 4, 1))
sketch4.addConstraint(Sketcher.Constraint("Coincident", 4, 2, 5, 1))
sketch4.addConstraint(Sketcher.Constraint("Coincident", 5, 2, 6, 1))
sketch4.addConstraint(Sketcher.Constraint("Coincident", 6, 2, 0, 1))
sketch4.addConstraint(Sketcher.Constraint("Coincident", 7, 2, 8, 1))
sketch4.addConstraint(Sketcher.Constraint("Coincident", 8, 2, 9, 1))
sketch4.addConstraint(Sketcher.Constraint("Tangent", 9, 2, 10, 2))
sketch4.addConstraint(Sketcher.Constraint("Tangent", 10, 1, 11, 1))
sketch4.addConstraint(Sketcher.Constraint("Coincident", 11, 2, 12, 1))
sketch4.addConstraint(Sketcher.Constraint("Coincident", 12, 2, 13, 1))
sketch4.addConstraint(Sketcher.Constraint("Coincident", 13, 2, 7, 1))
sketch4.addConstraint(Sketcher.Constraint("Coincident", 14, 2, 15, 1))
sketch4.addConstraint(Sketcher.Constraint("Tangent", 15, 2, 16, 2))
sketch4.addConstraint(Sketcher.Constraint("Tangent", 16, 1, 17, 1))
sketch4.addConstraint(Sketcher.Constraint("Coincident", 17, 2, 18, 1))
sketch4.addConstraint(Sketcher.Constraint("Coincident", 18, 2, 19, 1))
sketch4.addConstraint(Sketcher.Constraint("Coincident", 19, 2, 20, 1))
sketch4.addConstraint(Sketcher.Constraint("Coincident", 20, 2, 14, 1))
sketch4.addConstraint(Sketcher.Constraint("Coincident", 21, 2, 22, 1))
sketch4.addConstraint(Sketcher.Constraint("Tangent", 22, 2, 23, 2))
sketch4.addConstraint(Sketcher.Constraint("Tangent", 23, 1, 24, 1))
sketch4.addConstraint(Sketcher.Constraint("Coincident", 24, 2, 25, 1))
sketch4.addConstraint(Sketcher.Constraint("Coincident", 25, 2, 26, 1))
sketch4.addConstraint(Sketcher.Constraint("Coincident", 26, 2, 27, 1))
sketch4.addConstraint(Sketcher.Constraint("Coincident", 27, 2, 21, 1))
sketch4.addConstraint(Sketcher.Constraint("Vertical", 0))
sketch4.addConstraint(Sketcher.Constraint("Horizontal", 1))
sketch4.addConstraint(Sketcher.Constraint("Vertical", 2))
sketch4.addConstraint(Sketcher.Constraint("Horizontal", 4))
sketch4.addConstraint(Sketcher.Constraint("Vertical", 5))
sketch4.addConstraint(Sketcher.Constraint("Horizontal", 6))
sketch4.addConstraint(Sketcher.Constraint("Horizontal", 7))
sketch4.addConstraint(Sketcher.Constraint("Vertical", 8))
sketch4.addConstraint(Sketcher.Constraint("Horizontal", 9))
sketch4.addConstraint(Sketcher.Constraint("Vertical", 11))
sketch4.addConstraint(Sketcher.Constraint("Horizontal", 12))
sketch4.addConstraint(Sketcher.Constraint("Vertical", 13))
sketch4.addConstraint(Sketcher.Constraint("Horizontal", 14))
sketch4.addConstraint(Sketcher.Constraint("Vertical", 15))
sketch4.addConstraint(Sketcher.Constraint("Horizontal", 17))
sketch4.addConstraint(Sketcher.Constraint("Vertical", 18))
sketch4.addConstraint(Sketcher.Constraint("Horizontal", 19))
sketch4.addConstraint(Sketcher.Constraint("Vertical", 20))
sketch4.addConstraint(Sketcher.Constraint("Vertical", 21))
sketch4.addConstraint(Sketcher.Constraint("Horizontal", 22))
sketch4.addConstraint(Sketcher.Constraint("Vertical", 24))
sketch4.addConstraint(Sketcher.Constraint("Horizontal", 25))
sketch4.addConstraint(Sketcher.Constraint("Vertical", 26))
sketch4.addConstraint(Sketcher.Constraint("Horizontal", 27))
sketch4.addConstraint(Sketcher.Constraint("Equal", 3, 10))
sketch4.addConstraint(Sketcher.Constraint("Equal", 10, 16))
sketch4.addConstraint(Sketcher.Constraint("Equal", 16, 23))
sketch4.addConstraint(Sketcher.Constraint("Symmetric", 3, 3, 16, 3, -1, 1))
sketch4.addConstraint(Sketcher.Constraint("Symmetric", 10, 3, 23, 3, -1, 1))
sketch4.addConstraint(Sketcher.Constraint("Symmetric", 5, 2, 18, 2, -1, 1))
sketch4.addConstraint(Sketcher.Constraint("Symmetric", 0, 2, 20, 2, -1, 1))
sketch4.addConstraint(Sketcher.Constraint("Symmetric", 12, 2, 25, 2, -1, 1))
sketch4.addConstraint(Sketcher.Constraint("Symmetric", 7, 2, 27, 2, -1, 1))
sketch4.addConstraint(Sketcher.Constraint("Symmetric", 3, 3, 10, 3, -2))
sketch4.addConstraint(Sketcher.Constraint("Symmetric", 5, 2, 7, 2, -2))
sketch4.addConstraint(Sketcher.Constraint("Symmetric", 0, 2, 12, 2, -2))
sketch4.addConstraint(Sketcher.Constraint("Equal", 27, 0))
sketch4.addConstraint(Sketcher.Constraint("Equal", 22, 2))
sketch4.addConstraint(Sketcher.Constraint("Radius", 3, Q("0.999999 mm")))
sketch4.addConstraint(Sketcher.Constraint("DistanceX", 4, 1, 4, 2, Q("5 mm")))
sketch4.addConstraint(Sketcher.Constraint("DistanceX", 1, 1, 1, 2, Q("2.8 mm")))
sketch4.addConstraint(Sketcher.Constraint("DistanceX", 0, 2, 10, 3, Q("141.000001 mm")))
sketch4.addConstraint(Sketcher.Constraint("DistanceY", 16, 3, 7, 2, Q("86.000001 mm")))
pocket2 = doc.addObject("PartDesign::Pocket", "Pocket001")
body.addObject(pocket2)
pocket2.Profile = sketch4
pocket2.Length = 3.4
pocket2.Reversed = True

# Sketch on XZ plane
sketch5 = doc.addObject("Sketcher::SketchObject", "Sketch004")
body.addObject(sketch5)
sketch5.AttachmentSupport = (doc.XZ_Plane, [""])
sketch5.MapMode = "FlatFace"
sketch5.addGeometry(Part.LineSegment(App.Vector(-45, 53, 0), App.Vector(-45, 47, 0)), False)
sketch5.addGeometry(Part.ArcOfCircle(Part.Circle(App.Vector(-38, 47, 0), App.Vector(0, 0, 1), 7), math.radians(180), math.radians(270)), False)
sketch5.addGeometry(Part.LineSegment(App.Vector(-38, 40, 0), App.Vector(38, 40, 0)), False)
sketch5.addGeometry(Part.ArcOfCircle(Part.Circle(App.Vector(38, 47, 0), App.Vector(0, 0, 1), 7), math.radians(-90), math.radians(0)), False)
sketch5.addGeometry(Part.LineSegment(App.Vector(45, 47, 0), App.Vector(45, 53, 0)), False)
sketch5.addGeometry(Part.LineSegment(App.Vector(45, 53, 0), App.Vector(-45, 53, 0)), False)
sketch5.addConstraint(Sketcher.Constraint("Tangent", 0, 2, 1, 1))
sketch5.addConstraint(Sketcher.Constraint("Tangent", 1, 2, 2, 1))
sketch5.addConstraint(Sketcher.Constraint("Tangent", 2, 2, 3, 1))
sketch5.addConstraint(Sketcher.Constraint("Tangent", 3, 2, 4, 1))
sketch5.addConstraint(Sketcher.Constraint("Coincident", 4, 2, 5, 1))
sketch5.addConstraint(Sketcher.Constraint("Coincident", 5, 2, 0, 1))
sketch5.addConstraint(Sketcher.Constraint("Vertical", 0))
sketch5.addConstraint(Sketcher.Constraint("Horizontal", 2))
sketch5.addConstraint(Sketcher.Constraint("Vertical", 4))
sketch5.addConstraint(Sketcher.Constraint("Horizontal", 5))
sketch5.addConstraint(Sketcher.Constraint("Equal", 1, 3))
sketch5.addConstraint(Sketcher.Constraint("Radius", 1, Q("7.5 mm")))
sketch5.addConstraint(Sketcher.Constraint("DistanceX", 2, 1, 2, 2, Q("75 mm")))
sketch5.addConstraint(Sketcher.Constraint("DistanceY", 0, 2, 0, 1, Q("6 mm")))
sketch5.addConstraint(Sketcher.Constraint("DistanceY", -1, 1, 1, 3, Q("47 mm")))
sketch5.addConstraint(Sketcher.Constraint("DistanceX", 0, 2, -1, 1, Q("45 mm")))
pocket3 = doc.addObject("PartDesign::Pocket", "Pocket002")
body.addObject(pocket3)
pocket3.Profile = sketch5
pocket3.Type = "ThroughAll"
pocket3.Midplane = True

# Sketch on YZ plane
sketch6 = doc.addObject("Sketcher::SketchObject", "Sketch005")
body.addObject(sketch6)
sketch6.AttachmentSupport = (doc.YZ_Plane, [""])
sketch6.MapMode = "FlatFace"
sketch6.addGeometry(Part.ArcOfCircle(Part.Circle(App.Vector(-12, 36, 0), App.Vector(0, 0, 1), 7), math.radians(90), math.radians(270)), False)
sketch6.addGeometry(Part.LineSegment(App.Vector(-12, 29, 0), App.Vector(12, 29, 0)), False)
sketch6.addGeometry(Part.ArcOfCircle(Part.Circle(App.Vector(12, 36, 0), App.Vector(0, 0, 1), 7), math.radians(-90), math.radians(90)), False)
sketch6.addGeometry(Part.LineSegment(App.Vector(12, 43, 0), App.Vector(-12, 43, 0)), False)
sketch6.addConstraint(Sketcher.Constraint("Tangent", 0, 2, 1, 1))
sketch6.addConstraint(Sketcher.Constraint("Tangent", 1, 2, 2, 1))
sketch6.addConstraint(Sketcher.Constraint("Tangent", 2, 2, 3, 1))
sketch6.addConstraint(Sketcher.Constraint("Tangent", 3, 2, 0, 1))
sketch6.addConstraint(Sketcher.Constraint("Horizontal", 1))
sketch6.addConstraint(Sketcher.Constraint("Horizontal", 3))
sketch6.addConstraint(Sketcher.Constraint("Radius", 0, Q("7 mm")))
sketch6.addConstraint(Sketcher.Constraint("DistanceX", 1, 1, 1, 2, Q("25 mm")))
sketch6.addConstraint(Sketcher.Constraint("DistanceY", -1, 1, 0, 3, Q("36 mm")))
sketch6.addConstraint(Sketcher.Constraint("DistanceX", 0, 3, -1, 1, Q("12.5 mm")))
pocket4 = doc.addObject("PartDesign::Pocket", "Pocket003")
body.addObject(pocket4)
pocket4.Profile = sketch6
pocket4.Type = "ThroughAll"
pocket4.Midplane = True

# Sketch on XZ plane
sketch7 = doc.addObject("Sketcher::SketchObject", "Sketch006")
body.addObject(sketch7)
sketch7.AttachmentSupport = (doc.XZ_Plane, [""])
sketch7.MapMode = "FlatFace"
sketch7.AttachmentOffset = App.Placement(App.Vector(0, 0, 47.5), App.Rotation())
add_polygon(sketch7, [(-71, 48), (-71, 2), (-62, 2), (-62, 48)])  # lines 0-3
add_polygon(sketch7, [(62, 48), (62, 2), (71, 2), (71, 48)])  # lines 4-7
sketch7.addGeometry(Part.ArcOfCircle(Part.Circle(App.Vector(-37.5, 47, 0), App.Vector(0, 0, 1), 10.5), math.radians(-180), math.radians(-90)), False)  # 8
sketch7.addGeometry(Part.LineSegment(App.Vector(-48, 47, 0), App.Vector(-48, 48, 0)), False)  # 9
sketch7.addGeometry(Part.LineSegment(App.Vector(-48, 48, 0), App.Vector(-59, 48, 0)), False)  # 10
sketch7.addGeometry(Part.LineSegment(App.Vector(-59, 48, 0), App.Vector(-59, 32.5, 0)), False)  # 11
sketch7.addGeometry(Part.LineSegment(App.Vector(-59, 32.5, 0), App.Vector(59, 32.5, 0)), False)  # 12
sketch7.addGeometry(Part.LineSegment(App.Vector(59, 32.5, 0), App.Vector(59, 48, 0)), False)  # 13
sketch7.addGeometry(Part.LineSegment(App.Vector(59, 48, 0), App.Vector(48, 48, 0)), False)  # 14
sketch7.addGeometry(Part.LineSegment(App.Vector(48, 48, 0), App.Vector(48, 47, 0)), False)  # 15
sketch7.addGeometry(Part.ArcOfCircle(Part.Circle(App.Vector(37.5, 47, 0), App.Vector(0, 0, 1), 10.5), math.radians(-90), math.radians(0)), False)  # 16
sketch7.addGeometry(Part.LineSegment(App.Vector(37.5, 36.5, 0), App.Vector(-37.5, 36.5, 0)), False)  # 17
add_polygon(sketch7, [(-59, 30.5), (-59, 25), (59, 25), (59, 30.5)])  # lines 18-21
sketch7.addConstraint(Sketcher.Constraint("Tangent", 8, 1, 9, 1))
sketch7.addConstraint(Sketcher.Constraint("Coincident", 9, 2, 10, 1))
sketch7.addConstraint(Sketcher.Constraint("Coincident", 10, 2, 11, 1))
sketch7.addConstraint(Sketcher.Constraint("Coincident", 11, 2, 12, 1))
sketch7.addConstraint(Sketcher.Constraint("Coincident", 12, 2, 13, 1))
sketch7.addConstraint(Sketcher.Constraint("Coincident", 13, 2, 14, 1))
sketch7.addConstraint(Sketcher.Constraint("Coincident", 14, 2, 15, 1))
sketch7.addConstraint(Sketcher.Constraint("Tangent", 15, 2, 16, 2))
sketch7.addConstraint(Sketcher.Constraint("Tangent", 16, 1, 17, 1))
sketch7.addConstraint(Sketcher.Constraint("Tangent", 17, 2, 8, 2))
sketch7.addConstraint(Sketcher.Constraint("Vertical", 0))
sketch7.addConstraint(Sketcher.Constraint("Horizontal", 1))
sketch7.addConstraint(Sketcher.Constraint("Vertical", 2))
sketch7.addConstraint(Sketcher.Constraint("Horizontal", 3))
sketch7.addConstraint(Sketcher.Constraint("Vertical", 4))
sketch7.addConstraint(Sketcher.Constraint("Horizontal", 5))
sketch7.addConstraint(Sketcher.Constraint("Vertical", 6))
sketch7.addConstraint(Sketcher.Constraint("Horizontal", 7))
sketch7.addConstraint(Sketcher.Constraint("Vertical", 9))
sketch7.addConstraint(Sketcher.Constraint("Horizontal", 10))
sketch7.addConstraint(Sketcher.Constraint("Vertical", 11))
sketch7.addConstraint(Sketcher.Constraint("Horizontal", 12))
sketch7.addConstraint(Sketcher.Constraint("Vertical", 13))
sketch7.addConstraint(Sketcher.Constraint("Horizontal", 14))
sketch7.addConstraint(Sketcher.Constraint("Vertical", 15))
sketch7.addConstraint(Sketcher.Constraint("Horizontal", 17))
sketch7.addConstraint(Sketcher.Constraint("Vertical", 18))
sketch7.addConstraint(Sketcher.Constraint("Horizontal", 19))
sketch7.addConstraint(Sketcher.Constraint("Vertical", 20))
sketch7.addConstraint(Sketcher.Constraint("Horizontal", 21))
sketch7.addConstraint(Sketcher.Constraint("Equal", 8, 16))
sketch7.addConstraint(Sketcher.Constraint("Symmetric", 1, 2, 4, 2, -2))
sketch7.addConstraint(Sketcher.Constraint("Symmetric", 3, 2, 6, 2, -2))
sketch7.addConstraint(Sketcher.Constraint("Symmetric", 10, 2, 13, 2, -2))
sketch7.addConstraint(Sketcher.Constraint("Horizontal", 7, 2, 9, 2))
sketch7.addConstraint(Sketcher.Constraint("Vertical", 11, 2, 18, 2))
sketch7.addConstraint(Sketcher.Constraint("Vertical", 13, 2, 19, 2))
sketch7.addConstraint(Sketcher.Constraint("Equal", 10, 14))
sketch7.addConstraint(Sketcher.Constraint("Radius", 8, Q("10.500001 mm")))
sketch7.addConstraint(Sketcher.Constraint("DistanceX", 1, 1, 1, 2, Q("9 mm")))
sketch7.addConstraint(Sketcher.Constraint("DistanceX", 10, 2, 10, 1, Q("11 mm")))
sketch7.addConstraint(Sketcher.Constraint("DistanceX", 12, 1, 12, 2, Q("118 mm")))
sketch7.addConstraint(Sketcher.Constraint("DistanceY", 0, 2, 0, 1, Q("46 mm")))
sketch7.addConstraint(Sketcher.Constraint("DistanceY", 9, 1, 9, 2, Q("1 mm")))
sketch7.addConstraint(Sketcher.Constraint("DistanceY", 11, 2, 11, 1, Q("15.5 mm")))
sketch7.addConstraint(Sketcher.Constraint("DistanceY", 18, 2, 18, 1, Q("5.5 mm")))
sketch7.addConstraint(Sketcher.Constraint("DistanceY", -1, 1, 8, 3, Q("47.000001 mm")))
sketch7.addConstraint(Sketcher.Constraint("DistanceX", 0, 2, -1, 1, Q("71 mm")))
sketch7.addConstraint(Sketcher.Constraint("DistanceY", -1, 1, 18, 2, Q("25 mm")))
pocket5 = doc.addObject("PartDesign::Pocket", "Pocket004")
body.addObject(pocket5)
pocket5.Profile = sketch7
pocket5.Length = 1.5
doc.recompute()

mirrored = doc.addObject("PartDesign::Mirrored", "Mirrored")
body.addObject(mirrored)
mirrored.Originals = [pocket5]
mirrored.MirrorPlane = (doc.XZ_Plane, [""])
body.Tip = mirrored

doc.recompute()
